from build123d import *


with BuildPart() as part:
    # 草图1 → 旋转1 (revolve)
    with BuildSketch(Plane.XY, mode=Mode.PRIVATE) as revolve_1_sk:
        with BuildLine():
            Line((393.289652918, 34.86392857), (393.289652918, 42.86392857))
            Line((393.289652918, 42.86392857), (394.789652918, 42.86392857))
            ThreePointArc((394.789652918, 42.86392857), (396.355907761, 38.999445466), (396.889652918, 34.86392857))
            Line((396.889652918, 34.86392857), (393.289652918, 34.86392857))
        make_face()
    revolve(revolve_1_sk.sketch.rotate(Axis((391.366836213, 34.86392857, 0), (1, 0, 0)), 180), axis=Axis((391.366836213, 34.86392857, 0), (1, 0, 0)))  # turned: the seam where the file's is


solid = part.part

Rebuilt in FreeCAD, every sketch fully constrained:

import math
import FreeCAD as App
import Part
import Sketcher
from FreeCAD import Vector
Q = App.Units.Quantity

doc = App.newDocument("Part")
body = doc.addObject("PartDesign::Body", "Body")

sketch1 = body.newObject("Sketcher::SketchObject", "Sketch")
sketch1.AttachmentSupport = (doc.getObject("XY_Plane"), [""])
sketch1.MapMode = "FlatFace"
sketch1.addGeometry(Part.LineSegment(Vector(393.289653, 42.863929, 0), Vector(393.289653, 34.863929, 0)), False)
sketch1.addGeometry(Part.LineSegment(Vector(393.289653, 34.863929, 0), Vector(396.889653, 34.863929, 0)), False)
sketch1.addGeometry(Part.ArcOfCircle(Part.Circle(Vector(380.601558, 34.863929, 0), Vector(0, 0, 1), 16.288095), math.radians(0), math.radians(29.416608)), False)
sketch1.addGeometry(Part.LineSegment(Vector(394.789653, 42.863929, 0), Vector(393.289653, 42.863929, 0)), False)
sketch1.addGeometry(Part.LineSegment(Vector(380.601558, 34.863929, 0), Vector(396.889653, 34.863929, 0)), True)
sketch1.addConstraint(Sketcher.Constraint("Coincident", 0, 2, 1, 1))
sketch1.addConstraint(Sketcher.Constraint("Coincident", 1, 2, 2, 1))
sketch1.addConstraint(Sketcher.Constraint("Coincident", 2, 2, 3, 1))
sketch1.addConstraint(Sketcher.Constraint("Coincident", 3, 2, 0, 1))
sketch1.addConstraint(Sketcher.Constraint("Vertical", 0))
sketch1.addConstraint(Sketcher.Constraint("Horizontal", 1))
sketch1.addConstraint(Sketcher.Constraint("Horizontal", 3))
sketch1.addConstraint(Sketcher.Constraint("Horizontal", 4))
sketch1.addConstraint(Sketcher.Constraint("Coincident", 4, 1, 2, 3))
sketch1.addConstraint(Sketcher.Constraint("Coincident", 4, 2, 1, 2))
sketch1.addConstraint(Sketcher.Constraint("DistanceY", 0, 2, 0, 1, Q("8 mm")))
sketch1.addConstraint(Sketcher.Constraint("DistanceX", 1, 1, 1, 2, Q("3.6 mm")))
sketch1.addConstraint(Sketcher.Constraint("DistanceX", 3, 2, 3, 1, Q("1.5 mm")))
sketch1.addConstraint(Sketcher.Constraint("DistanceY", -1, 1, 2, 3, Q("34.863929 mm")))
sketch1.addConstraint(Sketcher.Constraint("DistanceX", -1, 1, 2, 3, Q("380.601558 mm")))
revolution = body.newObject("PartDesign::Revolution", "Revolution")
revolution.Profile = sketch1
revolution.ReferenceAxis = (sketch1, ["Axis0"])
revolution.Angle = 360

doc.recompute()
